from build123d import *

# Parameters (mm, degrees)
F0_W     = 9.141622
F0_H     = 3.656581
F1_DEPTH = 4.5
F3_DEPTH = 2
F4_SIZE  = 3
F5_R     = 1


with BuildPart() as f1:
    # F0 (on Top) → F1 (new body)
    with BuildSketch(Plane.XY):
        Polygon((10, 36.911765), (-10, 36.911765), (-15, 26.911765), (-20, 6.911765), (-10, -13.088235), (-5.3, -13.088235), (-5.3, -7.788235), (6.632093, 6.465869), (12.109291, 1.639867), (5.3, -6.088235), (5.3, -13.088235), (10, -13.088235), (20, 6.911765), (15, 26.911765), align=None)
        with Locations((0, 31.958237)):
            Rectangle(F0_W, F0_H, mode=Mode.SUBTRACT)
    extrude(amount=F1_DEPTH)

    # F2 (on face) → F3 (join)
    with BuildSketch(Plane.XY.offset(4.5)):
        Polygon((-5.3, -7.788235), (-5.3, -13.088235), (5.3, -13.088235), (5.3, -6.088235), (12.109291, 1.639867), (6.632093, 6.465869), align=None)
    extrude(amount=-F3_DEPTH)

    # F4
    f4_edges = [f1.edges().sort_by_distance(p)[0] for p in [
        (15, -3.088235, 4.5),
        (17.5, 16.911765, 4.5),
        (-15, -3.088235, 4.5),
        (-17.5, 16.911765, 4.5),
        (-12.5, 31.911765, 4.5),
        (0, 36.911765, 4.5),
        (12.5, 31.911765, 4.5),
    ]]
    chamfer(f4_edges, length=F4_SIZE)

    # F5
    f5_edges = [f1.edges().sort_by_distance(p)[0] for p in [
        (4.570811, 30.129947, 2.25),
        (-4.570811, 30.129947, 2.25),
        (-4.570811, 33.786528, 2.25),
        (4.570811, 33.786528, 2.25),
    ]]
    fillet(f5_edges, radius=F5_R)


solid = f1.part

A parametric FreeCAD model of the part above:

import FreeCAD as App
import Part
import Sketcher
from FreeCAD import Vector


def edges_at(feature, points):
    """Names of the edges that pass closest to the given points."""
    edges = feature.Shape.Edges
    near = lambda p: min(range(len(edges)), key=lambda i: edges[i].distToShape(Part.Vertex(*p))[0])
    return sorted({f"Edge{near(p) + 1}" for p in points})

doc = App.newDocument("Part")
body = doc.addObject("PartDesign::Body", "Body")

sketch1 = body.newObject("Sketcher::SketchObject", "Sketch")
sketch1.AttachmentSupport = (doc.getObject("XY_Plane"), [""])
sketch1.MapMode = "FlatFace"
sketch1.addGeometry([
    Part.LineSegment(Vector(10, 36.9, 0), Vector(-10, 36.9, 0)),
    Part.LineSegment(Vector(-10, 36.9, 0), Vector(-15, 26.9, 0)),
    Part.LineSegment(Vector(-15, 26.9, 0), Vector(-20, 6.9, 0)),
    Part.LineSegment(Vector(-20, 6.9, 0), Vector(-10, -13.1, 0)),
    Part.LineSegment(Vector(-10, -13.1, 0), Vector(-5.3, -13.1, 0)),
    Part.LineSegment(Vector(-5.3, -13.1, 0), Vector(-5.3, -7.8, 0)),
    Part.LineSegment(Vector(-5.3, -7.8, 0), Vector(6.6, 6.5, 0)),
    Part.LineSegment(Vector(6.6, 6.5, 0), Vector(12.1, 1.6, 0)),
    Part.LineSegment(Vector(12.1, 1.6, 0), Vector(5.3, -6.1, 0)),
    Part.LineSegment(Vector(5.3, -6.1, 0), Vector(5.3, -13.1, 0)),
    Part.LineSegment(Vector(5.3, -13.1, 0), Vector(10, -13.1, 0)),
    Part.LineSegment(Vector(10, -13.1, 0), Vector(20, 6.9, 0)),
    Part.LineSegment(Vector(20, 6.9, 0), Vector(15, 26.9, 0)),
    Part.LineSegment(Vector(15, 26.9, 0), Vector(10, 36.9, 0)),
    Part.LineSegment(Vector(4.6, 30.1, 0), Vector(-4.6, 30.1, 0)),
    Part.LineSegment(Vector(-4.6, 30.1, 0), Vector(-4.6, 33.8, 0)),
    Part.LineSegment(Vector(-4.6, 33.8, 0), Vector(4.6, 33.8, 0)),
    Part.LineSegment(Vector(4.6, 33.8, 0), Vector(4.6, 30.1, 0)),
], False)
sketch1.addConstraint([
    Sketcher.Constraint("Coincident", 0, 2, 1, 1),
    Sketcher.Constraint("Coincident", 1, 2, 2, 1),
    Sketcher.Constraint("Coincident", 2, 2, 3, 1),
    Sketcher.Constraint("Coincident", 3, 2, 4, 1),
    Sketcher.Constraint("Coincident", 4, 2, 5, 1),
    Sketcher.Constraint("Coincident", 5, 2, 6, 1),
    Sketcher.Constraint("Coincident", 6, 2, 7, 1),
    Sketcher.Constraint("Coincident", 7, 2, 8, 1),
    Sketcher.Constraint("Coincident", 8, 2, 9, 1),
    Sketcher.Constraint("Coincident", 9, 2, 10, 1),
    Sketcher.Constraint("Coincident", 10, 2, 11, 1),
    Sketcher.Constraint("Coincident", 11, 2, 12, 1),
    Sketcher.Constraint("Coincident", 12, 2, 13, 1),
    Sketcher.Constraint("Coincident", 13, 2, 0, 1),
    Sketcher.Constraint("Coincident", 14, 2, 15, 1),
    Sketcher.Constraint("Coincident", 15, 2, 16, 1),
    Sketcher.Constraint("Coincident", 16, 2, 17, 1),
    Sketcher.Constraint("Coincident", 17, 2, 14, 1),
    Sketcher.Constraint("Horizontal", 0),
    Sketcher.Constraint("Horizontal", 4),
    Sketcher.Constraint("Vertical", 5),
    Sketcher.Constraint("Vertical", 9),
    Sketcher.Constraint("Horizontal", 10),
    Sketcher.Constraint("Horizontal", 14),
    Sketcher.Constraint("Vertical", 15),
    Sketcher.Constraint("Horizontal", 16),
    Sketcher.Constraint("Vertical", 17),
    Sketcher.Constraint("Symmetric", 4, 2, 9, 2, -2),
    Sketcher.Constraint("Symmetric", 2, 2, 11, 2, -2),
    Sketcher.Constraint("Symmetric", 1, 2, 12, 2, -2),
    Sketcher.Constraint("Perpendicular", 7, 8),
    Sketcher.Constraint("Parallel", 1, 11),
    Sketcher.Constraint("Parallel", 3, 13),
    Sketcher.Constraint("Vertical", 0, 2, 3, 2),
    Sketcher.Constraint("Vertical", 10, 2, 13, 2),
    Sketcher.Constraint("DistanceX", 0, 2, 0, 1, 20.0),
    Sketcher.Constraint("DistanceY", 9, 2, 9, 1, 7.0),
    Sketcher.Constraint("DistanceX", 4, 1, 4, 2, 4.7),
    Sketcher.Constraint("DistanceY", 5, 1, 5, 2, 5.3),
    Sketcher.Constraint("DistanceX", 1, 2, -1, 1, 15.0),
    Sketcher.Constraint("DistanceX", 2, 2, -1, 1, 20.0),
    Sketcher.Constraint("DistanceY", 1, 2, 0, 2, 10.0),
    Sketcher.Constraint("DistanceY", 2, 2, 1, 2, 20.0),
    Sketcher.Constraint("Distance", 7, 7.3),
    Sketcher.Constraint("Distance", 8, 10.3),
    Sketcher.Constraint("DistanceY", 15, 1, 15, 2, 3.656581),
    Sketcher.Constraint("DistanceX", 6, 2, 7, 2, 5.477198),
    Sketcher.Constraint("DistanceX", 14, 2, 14, 1, 9.141622),
    Sketcher.Constraint("DistanceY", -1, 1, 6, 2, 6.465869),
    Sketcher.Constraint("DistanceX", 14, 2, -1, 1, 4.570811),
    Sketcher.Constraint("DistanceY", 14, 2, 0, 2, 6.781819),
])
pad1 = body.newObject("PartDesign::Pad", "Pad")
pad1.Profile = sketch1
pad1.Length = 4.5

sketch2 = body.newObject("Sketcher::SketchObject", "Sketch001")
sketch2.AttachmentSupport = (doc.getObject("XY_Plane"), [""])
sketch2.MapMode = "FlatFace"
sketch2.AttachmentOffset = App.Placement(Vector(0, 0, 4.5), App.Rotation())
sketch2.addGeometry([
    Part.LineSegment(Vector(-5, -8, 0), Vector(-5, -13, 0)),
    Part.LineSegment(Vector(-5, -13, 0), Vector(5, -13, 0)),
    Part.LineSegment(Vector(5, -13, 0), Vector(5, -6, 0)),
    Part.LineSegment(Vector(5, -6, 0), Vector(12, 2, 0)),
    Part.LineSegment(Vector(12, 2, 0), Vector(7, 6, 0)),
    Part.LineSegment(Vector(7, 6, 0), Vector(-5, -8, 0)),
], False)
sketch2.addConstraint([
    Sketcher.Constraint("Coincident", 0, 2, 1, 1),
    Sketcher.Constraint("Coincident", 1, 2, 2, 1),
    Sketcher.Constraint("Coincident", 2, 2, 3, 1),
    Sketcher.Constraint("Coincident", 3, 2, 4, 1),
    Sketcher.Constraint("Coincident", 4, 2, 5, 1),
    Sketcher.Constraint("Coincident", 5, 2, 0, 1),
    Sketcher.Constraint("Vertical", 0),
    Sketcher.Constraint("Horizontal", 1),
    Sketcher.Constraint("Vertical", 2),
    Sketcher.Constraint("Perpendicular", 3, 4),
    Sketcher.Constraint("DistanceY", 2, 1, 2, 2, 7.0),
    Sketcher.Constraint("DistanceX", 1, 1, 1, 2, 10.6),
    Sketcher.Constraint("DistanceY", 0, 2, 0, 1, 5.3),
    Sketcher.Constraint("Distance", 3, 10.3),
    Sketcher.Constraint("Distance", 4, 7.3),
    Sketcher.Constraint("DistanceX", 0, 2, -1, 1, 5.3),
    Sketcher.Constraint("DistanceY", 2, 2, 3, 2, 7.728102),
    Sketcher.Constraint("DistanceY", -1, 1, 4, 2, 6.465869),
])
pad2 = body.newObject("PartDesign::Pad", "Pad001")
pad2.Profile = sketch2
pad2.Length = 2
pad2.Reversed = True
doc.recompute()

chamfer = body.newObject("PartDesign::Chamfer", "Chamfer")
chamfer.Base = (pad2, edges_at(pad2, [
    (15, -3.088, 4.5),
    (17.5, 16.912, 4.5),
    (-15, -3.088, 4.5),
    (-17.5, 16.912, 4.5),
    (-12.5, 31.912, 4.5),
    (0, 36.912, 4.5),
    (12.5, 31.912, 4.5),
]))
chamfer.Size = 3
doc.recompute()

fillet = body.newObject("PartDesign::Fillet", "Fillet")
fillet.Base = (chamfer, edges_at(chamfer, [
    (4.571, 30.13, 2.25),
    (-4.571, 30.13, 2.25),
    (-4.571, 33.787, 2.25),
    (4.571, 33.787, 2.25),
]))
fillet.Radius = 1

doc.recompute()
